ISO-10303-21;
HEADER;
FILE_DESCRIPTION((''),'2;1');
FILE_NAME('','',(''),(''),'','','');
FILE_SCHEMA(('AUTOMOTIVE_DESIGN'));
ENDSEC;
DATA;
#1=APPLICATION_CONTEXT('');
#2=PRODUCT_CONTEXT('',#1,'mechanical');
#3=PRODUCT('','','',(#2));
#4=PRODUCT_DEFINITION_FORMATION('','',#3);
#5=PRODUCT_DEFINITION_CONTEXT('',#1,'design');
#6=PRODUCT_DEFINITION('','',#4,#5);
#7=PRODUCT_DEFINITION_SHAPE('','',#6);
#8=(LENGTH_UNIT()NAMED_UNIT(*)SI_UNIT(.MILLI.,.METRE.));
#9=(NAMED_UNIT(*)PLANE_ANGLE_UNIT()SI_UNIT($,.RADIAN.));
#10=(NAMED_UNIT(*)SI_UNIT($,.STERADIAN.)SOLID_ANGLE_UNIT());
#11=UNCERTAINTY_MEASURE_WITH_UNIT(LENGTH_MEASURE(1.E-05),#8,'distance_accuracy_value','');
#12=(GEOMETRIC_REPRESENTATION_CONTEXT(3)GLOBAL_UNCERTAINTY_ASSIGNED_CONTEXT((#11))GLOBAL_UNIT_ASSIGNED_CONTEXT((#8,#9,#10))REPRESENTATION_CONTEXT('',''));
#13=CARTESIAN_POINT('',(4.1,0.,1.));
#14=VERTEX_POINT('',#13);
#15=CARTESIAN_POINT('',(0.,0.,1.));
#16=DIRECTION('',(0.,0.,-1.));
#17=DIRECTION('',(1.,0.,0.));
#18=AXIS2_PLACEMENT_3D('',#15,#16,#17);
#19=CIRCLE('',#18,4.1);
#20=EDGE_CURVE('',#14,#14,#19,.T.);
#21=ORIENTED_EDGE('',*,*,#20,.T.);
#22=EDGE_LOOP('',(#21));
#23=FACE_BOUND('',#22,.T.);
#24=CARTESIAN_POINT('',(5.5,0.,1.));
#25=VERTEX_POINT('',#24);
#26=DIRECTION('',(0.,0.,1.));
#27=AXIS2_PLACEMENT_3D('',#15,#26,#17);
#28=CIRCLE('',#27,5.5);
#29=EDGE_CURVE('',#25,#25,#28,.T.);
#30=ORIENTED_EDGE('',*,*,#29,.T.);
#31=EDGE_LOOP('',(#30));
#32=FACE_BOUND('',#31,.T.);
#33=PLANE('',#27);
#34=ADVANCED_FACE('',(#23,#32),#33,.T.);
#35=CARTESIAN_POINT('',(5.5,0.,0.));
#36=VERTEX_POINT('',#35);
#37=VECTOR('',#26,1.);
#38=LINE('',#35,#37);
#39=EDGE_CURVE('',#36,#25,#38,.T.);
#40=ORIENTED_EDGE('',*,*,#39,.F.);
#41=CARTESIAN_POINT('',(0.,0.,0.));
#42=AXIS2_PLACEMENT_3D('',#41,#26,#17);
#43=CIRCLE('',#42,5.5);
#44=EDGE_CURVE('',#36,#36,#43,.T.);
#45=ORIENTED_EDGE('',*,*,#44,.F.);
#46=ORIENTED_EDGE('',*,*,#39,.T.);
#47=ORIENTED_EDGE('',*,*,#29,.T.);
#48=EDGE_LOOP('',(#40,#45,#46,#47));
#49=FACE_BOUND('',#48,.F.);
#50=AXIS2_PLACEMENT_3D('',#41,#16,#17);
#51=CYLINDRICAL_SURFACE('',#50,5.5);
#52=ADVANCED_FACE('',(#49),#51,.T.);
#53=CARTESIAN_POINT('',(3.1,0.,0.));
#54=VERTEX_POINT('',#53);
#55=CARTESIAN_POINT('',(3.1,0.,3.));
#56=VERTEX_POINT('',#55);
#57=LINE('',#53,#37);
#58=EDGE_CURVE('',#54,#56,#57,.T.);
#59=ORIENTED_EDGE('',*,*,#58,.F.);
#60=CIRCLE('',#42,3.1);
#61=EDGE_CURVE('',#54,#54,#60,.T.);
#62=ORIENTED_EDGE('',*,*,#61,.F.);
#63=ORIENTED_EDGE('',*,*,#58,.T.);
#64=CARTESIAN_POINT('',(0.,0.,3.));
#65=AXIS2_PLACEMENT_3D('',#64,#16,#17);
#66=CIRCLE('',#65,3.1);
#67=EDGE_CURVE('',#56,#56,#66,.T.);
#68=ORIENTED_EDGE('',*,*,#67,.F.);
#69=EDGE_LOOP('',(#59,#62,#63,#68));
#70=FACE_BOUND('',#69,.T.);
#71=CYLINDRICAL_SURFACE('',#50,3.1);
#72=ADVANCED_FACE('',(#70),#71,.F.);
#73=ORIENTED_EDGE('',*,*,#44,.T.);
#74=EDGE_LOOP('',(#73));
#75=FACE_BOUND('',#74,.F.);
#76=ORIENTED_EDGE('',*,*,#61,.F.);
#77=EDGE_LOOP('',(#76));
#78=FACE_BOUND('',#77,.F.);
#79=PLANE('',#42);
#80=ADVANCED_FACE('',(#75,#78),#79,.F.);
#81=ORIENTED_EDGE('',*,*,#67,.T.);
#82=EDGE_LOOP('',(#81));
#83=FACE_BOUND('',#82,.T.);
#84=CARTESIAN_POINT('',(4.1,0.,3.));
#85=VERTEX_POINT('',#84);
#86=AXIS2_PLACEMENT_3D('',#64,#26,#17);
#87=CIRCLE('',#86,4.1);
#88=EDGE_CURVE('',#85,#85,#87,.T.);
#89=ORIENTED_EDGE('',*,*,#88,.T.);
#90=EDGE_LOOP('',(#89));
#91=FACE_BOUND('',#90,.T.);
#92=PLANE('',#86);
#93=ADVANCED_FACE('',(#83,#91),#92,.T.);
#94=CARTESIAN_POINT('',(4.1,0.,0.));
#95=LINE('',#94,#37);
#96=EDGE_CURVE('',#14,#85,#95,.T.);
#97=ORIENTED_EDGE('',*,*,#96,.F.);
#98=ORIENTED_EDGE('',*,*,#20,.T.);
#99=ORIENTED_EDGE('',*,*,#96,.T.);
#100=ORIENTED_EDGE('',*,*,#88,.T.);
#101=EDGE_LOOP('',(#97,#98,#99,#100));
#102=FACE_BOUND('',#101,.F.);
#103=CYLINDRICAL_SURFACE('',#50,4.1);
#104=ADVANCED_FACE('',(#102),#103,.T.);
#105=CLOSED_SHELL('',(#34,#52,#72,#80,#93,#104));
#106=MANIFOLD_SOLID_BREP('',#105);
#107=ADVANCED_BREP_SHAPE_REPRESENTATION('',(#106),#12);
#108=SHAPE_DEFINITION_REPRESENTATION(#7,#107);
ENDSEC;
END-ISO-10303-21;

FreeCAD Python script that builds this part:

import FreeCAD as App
import Part
import Sketcher
from FreeCAD import Vector
Q = App.Units.Quantity

doc = App.newDocument("Part")
body = doc.addObject("PartDesign::Body", "Body")

# Sketch on XY plane
sketch1 = body.newObject("Sketcher::SketchObject", "Sketch")
sketch1.AttachmentSupport = (doc.getObject("XY_Plane"), [""])
sketch1.MapMode = "FlatFace"
sketch1.addGeometry(Part.Circle(Vector(0, 0, 0), Vector(0, 0, 1), 6), False)
sketch1.addConstraint(Sketcher.Constraint("Coincident", 0, 3, -1, 1))
sketch1.addConstraint(Sketcher.Constraint("Diameter", 0, Q("11 mm")))
pad1 = body.newObject("PartDesign::Pad", "Pad")
pad1.Profile = sketch1
pad1.Length = 1

# Sketch on XY plane
sketch2 = body.newObject("Sketcher::SketchObject", "Sketch001")
sketch2.AttachmentSupport = (doc.getObject("XY_Plane"), [""])
sketch2.MapMode = "FlatFace"
sketch2.addGeometry(Part.Circle(Vector(0, 0, 0), Vector(0, 0, 1), 4.1), False)
sketch2.addConstraint(Sketcher.Constraint("Coincident", 0, 3, -1, 1))
sketch2.addConstraint(Sketcher.Constraint("Diameter", 0, Q("8.2 mm")))
pad2 = body.newObject("PartDesign::Pad", "Pad001")
pad2.Profile = sketch2
pad2.Length = 3

# Sketch on XY plane
sketch3 = body.newObject("Sketcher::SketchObject", "Sketch002")
sketch3.AttachmentSupport = (doc.getObject("XY_Plane"), [""])
sketch3.MapMode = "FlatFace"
sketch3.addGeometry(Part.Circle(Vector(0, 0, 0), Vector(0, 0, 1), 3.1), False)
sketch3.addConstraint(Sketcher.Constraint("Coincident", 0, 3, -1, 1))
sketch3.addConstraint(Sketcher.Constraint("Diameter", 0, Q("6.2 mm")))
pocket1 = body.newObject("PartDesign::Pocket", "Pocket")
pocket1.Profile = sketch3
pocket1.Type = "ThroughAll"
pocket1.Reversed = True

doc.recompute()
